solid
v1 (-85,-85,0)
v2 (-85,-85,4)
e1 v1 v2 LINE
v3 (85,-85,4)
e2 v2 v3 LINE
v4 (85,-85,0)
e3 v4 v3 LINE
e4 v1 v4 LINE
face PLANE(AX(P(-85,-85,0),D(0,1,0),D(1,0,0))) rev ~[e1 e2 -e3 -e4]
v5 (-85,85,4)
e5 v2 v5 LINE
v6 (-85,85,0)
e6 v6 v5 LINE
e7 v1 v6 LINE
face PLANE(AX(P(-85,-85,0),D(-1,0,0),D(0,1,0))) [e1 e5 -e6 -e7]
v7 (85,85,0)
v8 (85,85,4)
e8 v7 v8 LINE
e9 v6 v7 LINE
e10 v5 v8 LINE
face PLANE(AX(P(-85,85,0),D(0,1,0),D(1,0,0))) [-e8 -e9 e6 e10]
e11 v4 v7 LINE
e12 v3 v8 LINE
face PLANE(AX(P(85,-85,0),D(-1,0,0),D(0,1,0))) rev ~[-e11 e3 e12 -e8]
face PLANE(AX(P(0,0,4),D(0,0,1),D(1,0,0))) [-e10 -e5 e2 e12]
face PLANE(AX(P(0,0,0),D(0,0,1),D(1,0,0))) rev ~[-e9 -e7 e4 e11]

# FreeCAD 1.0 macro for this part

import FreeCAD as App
import Part
import Sketcher

doc = App.newDocument("Part")
body = doc.addObject("PartDesign::Body", "Body")

sketch1 = body.newObject("Sketcher::SketchObject", "Sketch")
sketch1.AttachmentSupport = (doc.getObject("XY_Plane"), [""])
sketch1.MapMode = "FlatFace"
sketch1.addGeometry([
    Part.LineSegment(App.Vector(-85, 85, 0), App.Vector(-85, -85, 0)),
    Part.LineSegment(App.Vector(-85, -85, 0), App.Vector(85, -85, 0)),
    Part.LineSegment(App.Vector(85, -85, 0), App.Vector(85, 85, 0)),
    Part.LineSegment(App.Vector(85, 85, 0), App.Vector(-85, 85, 0)),
], False)
sketch1.addConstraint([
    Sketcher.Constraint("Coincident", 0, 2, 1, 1),
    Sketcher.Constraint("Coincident", 1, 2, 2, 1),
    Sketcher.Constraint("Coincident", 2, 2, 3, 1),
    Sketcher.Constraint("Coincident", 3, 2, 0, 1),
    Sketcher.Constraint("Vertical", 0),
    Sketcher.Constraint("Horizontal", 1),
    Sketcher.Constraint("Vertical", 2),
    Sketcher.Constraint("Horizontal", 3),
    Sketcher.Constraint("Symmetric", 0, 2, 2, 2, -1, 1),
    Sketcher.Constraint("Equal", 3, 0),
    Sketcher.Constraint("DistanceX", 1, 1, 1, 2, 170.0),
])
pad1 = body.newObject("PartDesign::Pad", "Pad")
pad1.Profile = sketch1
pad1.Length = 4

doc.recompute()
